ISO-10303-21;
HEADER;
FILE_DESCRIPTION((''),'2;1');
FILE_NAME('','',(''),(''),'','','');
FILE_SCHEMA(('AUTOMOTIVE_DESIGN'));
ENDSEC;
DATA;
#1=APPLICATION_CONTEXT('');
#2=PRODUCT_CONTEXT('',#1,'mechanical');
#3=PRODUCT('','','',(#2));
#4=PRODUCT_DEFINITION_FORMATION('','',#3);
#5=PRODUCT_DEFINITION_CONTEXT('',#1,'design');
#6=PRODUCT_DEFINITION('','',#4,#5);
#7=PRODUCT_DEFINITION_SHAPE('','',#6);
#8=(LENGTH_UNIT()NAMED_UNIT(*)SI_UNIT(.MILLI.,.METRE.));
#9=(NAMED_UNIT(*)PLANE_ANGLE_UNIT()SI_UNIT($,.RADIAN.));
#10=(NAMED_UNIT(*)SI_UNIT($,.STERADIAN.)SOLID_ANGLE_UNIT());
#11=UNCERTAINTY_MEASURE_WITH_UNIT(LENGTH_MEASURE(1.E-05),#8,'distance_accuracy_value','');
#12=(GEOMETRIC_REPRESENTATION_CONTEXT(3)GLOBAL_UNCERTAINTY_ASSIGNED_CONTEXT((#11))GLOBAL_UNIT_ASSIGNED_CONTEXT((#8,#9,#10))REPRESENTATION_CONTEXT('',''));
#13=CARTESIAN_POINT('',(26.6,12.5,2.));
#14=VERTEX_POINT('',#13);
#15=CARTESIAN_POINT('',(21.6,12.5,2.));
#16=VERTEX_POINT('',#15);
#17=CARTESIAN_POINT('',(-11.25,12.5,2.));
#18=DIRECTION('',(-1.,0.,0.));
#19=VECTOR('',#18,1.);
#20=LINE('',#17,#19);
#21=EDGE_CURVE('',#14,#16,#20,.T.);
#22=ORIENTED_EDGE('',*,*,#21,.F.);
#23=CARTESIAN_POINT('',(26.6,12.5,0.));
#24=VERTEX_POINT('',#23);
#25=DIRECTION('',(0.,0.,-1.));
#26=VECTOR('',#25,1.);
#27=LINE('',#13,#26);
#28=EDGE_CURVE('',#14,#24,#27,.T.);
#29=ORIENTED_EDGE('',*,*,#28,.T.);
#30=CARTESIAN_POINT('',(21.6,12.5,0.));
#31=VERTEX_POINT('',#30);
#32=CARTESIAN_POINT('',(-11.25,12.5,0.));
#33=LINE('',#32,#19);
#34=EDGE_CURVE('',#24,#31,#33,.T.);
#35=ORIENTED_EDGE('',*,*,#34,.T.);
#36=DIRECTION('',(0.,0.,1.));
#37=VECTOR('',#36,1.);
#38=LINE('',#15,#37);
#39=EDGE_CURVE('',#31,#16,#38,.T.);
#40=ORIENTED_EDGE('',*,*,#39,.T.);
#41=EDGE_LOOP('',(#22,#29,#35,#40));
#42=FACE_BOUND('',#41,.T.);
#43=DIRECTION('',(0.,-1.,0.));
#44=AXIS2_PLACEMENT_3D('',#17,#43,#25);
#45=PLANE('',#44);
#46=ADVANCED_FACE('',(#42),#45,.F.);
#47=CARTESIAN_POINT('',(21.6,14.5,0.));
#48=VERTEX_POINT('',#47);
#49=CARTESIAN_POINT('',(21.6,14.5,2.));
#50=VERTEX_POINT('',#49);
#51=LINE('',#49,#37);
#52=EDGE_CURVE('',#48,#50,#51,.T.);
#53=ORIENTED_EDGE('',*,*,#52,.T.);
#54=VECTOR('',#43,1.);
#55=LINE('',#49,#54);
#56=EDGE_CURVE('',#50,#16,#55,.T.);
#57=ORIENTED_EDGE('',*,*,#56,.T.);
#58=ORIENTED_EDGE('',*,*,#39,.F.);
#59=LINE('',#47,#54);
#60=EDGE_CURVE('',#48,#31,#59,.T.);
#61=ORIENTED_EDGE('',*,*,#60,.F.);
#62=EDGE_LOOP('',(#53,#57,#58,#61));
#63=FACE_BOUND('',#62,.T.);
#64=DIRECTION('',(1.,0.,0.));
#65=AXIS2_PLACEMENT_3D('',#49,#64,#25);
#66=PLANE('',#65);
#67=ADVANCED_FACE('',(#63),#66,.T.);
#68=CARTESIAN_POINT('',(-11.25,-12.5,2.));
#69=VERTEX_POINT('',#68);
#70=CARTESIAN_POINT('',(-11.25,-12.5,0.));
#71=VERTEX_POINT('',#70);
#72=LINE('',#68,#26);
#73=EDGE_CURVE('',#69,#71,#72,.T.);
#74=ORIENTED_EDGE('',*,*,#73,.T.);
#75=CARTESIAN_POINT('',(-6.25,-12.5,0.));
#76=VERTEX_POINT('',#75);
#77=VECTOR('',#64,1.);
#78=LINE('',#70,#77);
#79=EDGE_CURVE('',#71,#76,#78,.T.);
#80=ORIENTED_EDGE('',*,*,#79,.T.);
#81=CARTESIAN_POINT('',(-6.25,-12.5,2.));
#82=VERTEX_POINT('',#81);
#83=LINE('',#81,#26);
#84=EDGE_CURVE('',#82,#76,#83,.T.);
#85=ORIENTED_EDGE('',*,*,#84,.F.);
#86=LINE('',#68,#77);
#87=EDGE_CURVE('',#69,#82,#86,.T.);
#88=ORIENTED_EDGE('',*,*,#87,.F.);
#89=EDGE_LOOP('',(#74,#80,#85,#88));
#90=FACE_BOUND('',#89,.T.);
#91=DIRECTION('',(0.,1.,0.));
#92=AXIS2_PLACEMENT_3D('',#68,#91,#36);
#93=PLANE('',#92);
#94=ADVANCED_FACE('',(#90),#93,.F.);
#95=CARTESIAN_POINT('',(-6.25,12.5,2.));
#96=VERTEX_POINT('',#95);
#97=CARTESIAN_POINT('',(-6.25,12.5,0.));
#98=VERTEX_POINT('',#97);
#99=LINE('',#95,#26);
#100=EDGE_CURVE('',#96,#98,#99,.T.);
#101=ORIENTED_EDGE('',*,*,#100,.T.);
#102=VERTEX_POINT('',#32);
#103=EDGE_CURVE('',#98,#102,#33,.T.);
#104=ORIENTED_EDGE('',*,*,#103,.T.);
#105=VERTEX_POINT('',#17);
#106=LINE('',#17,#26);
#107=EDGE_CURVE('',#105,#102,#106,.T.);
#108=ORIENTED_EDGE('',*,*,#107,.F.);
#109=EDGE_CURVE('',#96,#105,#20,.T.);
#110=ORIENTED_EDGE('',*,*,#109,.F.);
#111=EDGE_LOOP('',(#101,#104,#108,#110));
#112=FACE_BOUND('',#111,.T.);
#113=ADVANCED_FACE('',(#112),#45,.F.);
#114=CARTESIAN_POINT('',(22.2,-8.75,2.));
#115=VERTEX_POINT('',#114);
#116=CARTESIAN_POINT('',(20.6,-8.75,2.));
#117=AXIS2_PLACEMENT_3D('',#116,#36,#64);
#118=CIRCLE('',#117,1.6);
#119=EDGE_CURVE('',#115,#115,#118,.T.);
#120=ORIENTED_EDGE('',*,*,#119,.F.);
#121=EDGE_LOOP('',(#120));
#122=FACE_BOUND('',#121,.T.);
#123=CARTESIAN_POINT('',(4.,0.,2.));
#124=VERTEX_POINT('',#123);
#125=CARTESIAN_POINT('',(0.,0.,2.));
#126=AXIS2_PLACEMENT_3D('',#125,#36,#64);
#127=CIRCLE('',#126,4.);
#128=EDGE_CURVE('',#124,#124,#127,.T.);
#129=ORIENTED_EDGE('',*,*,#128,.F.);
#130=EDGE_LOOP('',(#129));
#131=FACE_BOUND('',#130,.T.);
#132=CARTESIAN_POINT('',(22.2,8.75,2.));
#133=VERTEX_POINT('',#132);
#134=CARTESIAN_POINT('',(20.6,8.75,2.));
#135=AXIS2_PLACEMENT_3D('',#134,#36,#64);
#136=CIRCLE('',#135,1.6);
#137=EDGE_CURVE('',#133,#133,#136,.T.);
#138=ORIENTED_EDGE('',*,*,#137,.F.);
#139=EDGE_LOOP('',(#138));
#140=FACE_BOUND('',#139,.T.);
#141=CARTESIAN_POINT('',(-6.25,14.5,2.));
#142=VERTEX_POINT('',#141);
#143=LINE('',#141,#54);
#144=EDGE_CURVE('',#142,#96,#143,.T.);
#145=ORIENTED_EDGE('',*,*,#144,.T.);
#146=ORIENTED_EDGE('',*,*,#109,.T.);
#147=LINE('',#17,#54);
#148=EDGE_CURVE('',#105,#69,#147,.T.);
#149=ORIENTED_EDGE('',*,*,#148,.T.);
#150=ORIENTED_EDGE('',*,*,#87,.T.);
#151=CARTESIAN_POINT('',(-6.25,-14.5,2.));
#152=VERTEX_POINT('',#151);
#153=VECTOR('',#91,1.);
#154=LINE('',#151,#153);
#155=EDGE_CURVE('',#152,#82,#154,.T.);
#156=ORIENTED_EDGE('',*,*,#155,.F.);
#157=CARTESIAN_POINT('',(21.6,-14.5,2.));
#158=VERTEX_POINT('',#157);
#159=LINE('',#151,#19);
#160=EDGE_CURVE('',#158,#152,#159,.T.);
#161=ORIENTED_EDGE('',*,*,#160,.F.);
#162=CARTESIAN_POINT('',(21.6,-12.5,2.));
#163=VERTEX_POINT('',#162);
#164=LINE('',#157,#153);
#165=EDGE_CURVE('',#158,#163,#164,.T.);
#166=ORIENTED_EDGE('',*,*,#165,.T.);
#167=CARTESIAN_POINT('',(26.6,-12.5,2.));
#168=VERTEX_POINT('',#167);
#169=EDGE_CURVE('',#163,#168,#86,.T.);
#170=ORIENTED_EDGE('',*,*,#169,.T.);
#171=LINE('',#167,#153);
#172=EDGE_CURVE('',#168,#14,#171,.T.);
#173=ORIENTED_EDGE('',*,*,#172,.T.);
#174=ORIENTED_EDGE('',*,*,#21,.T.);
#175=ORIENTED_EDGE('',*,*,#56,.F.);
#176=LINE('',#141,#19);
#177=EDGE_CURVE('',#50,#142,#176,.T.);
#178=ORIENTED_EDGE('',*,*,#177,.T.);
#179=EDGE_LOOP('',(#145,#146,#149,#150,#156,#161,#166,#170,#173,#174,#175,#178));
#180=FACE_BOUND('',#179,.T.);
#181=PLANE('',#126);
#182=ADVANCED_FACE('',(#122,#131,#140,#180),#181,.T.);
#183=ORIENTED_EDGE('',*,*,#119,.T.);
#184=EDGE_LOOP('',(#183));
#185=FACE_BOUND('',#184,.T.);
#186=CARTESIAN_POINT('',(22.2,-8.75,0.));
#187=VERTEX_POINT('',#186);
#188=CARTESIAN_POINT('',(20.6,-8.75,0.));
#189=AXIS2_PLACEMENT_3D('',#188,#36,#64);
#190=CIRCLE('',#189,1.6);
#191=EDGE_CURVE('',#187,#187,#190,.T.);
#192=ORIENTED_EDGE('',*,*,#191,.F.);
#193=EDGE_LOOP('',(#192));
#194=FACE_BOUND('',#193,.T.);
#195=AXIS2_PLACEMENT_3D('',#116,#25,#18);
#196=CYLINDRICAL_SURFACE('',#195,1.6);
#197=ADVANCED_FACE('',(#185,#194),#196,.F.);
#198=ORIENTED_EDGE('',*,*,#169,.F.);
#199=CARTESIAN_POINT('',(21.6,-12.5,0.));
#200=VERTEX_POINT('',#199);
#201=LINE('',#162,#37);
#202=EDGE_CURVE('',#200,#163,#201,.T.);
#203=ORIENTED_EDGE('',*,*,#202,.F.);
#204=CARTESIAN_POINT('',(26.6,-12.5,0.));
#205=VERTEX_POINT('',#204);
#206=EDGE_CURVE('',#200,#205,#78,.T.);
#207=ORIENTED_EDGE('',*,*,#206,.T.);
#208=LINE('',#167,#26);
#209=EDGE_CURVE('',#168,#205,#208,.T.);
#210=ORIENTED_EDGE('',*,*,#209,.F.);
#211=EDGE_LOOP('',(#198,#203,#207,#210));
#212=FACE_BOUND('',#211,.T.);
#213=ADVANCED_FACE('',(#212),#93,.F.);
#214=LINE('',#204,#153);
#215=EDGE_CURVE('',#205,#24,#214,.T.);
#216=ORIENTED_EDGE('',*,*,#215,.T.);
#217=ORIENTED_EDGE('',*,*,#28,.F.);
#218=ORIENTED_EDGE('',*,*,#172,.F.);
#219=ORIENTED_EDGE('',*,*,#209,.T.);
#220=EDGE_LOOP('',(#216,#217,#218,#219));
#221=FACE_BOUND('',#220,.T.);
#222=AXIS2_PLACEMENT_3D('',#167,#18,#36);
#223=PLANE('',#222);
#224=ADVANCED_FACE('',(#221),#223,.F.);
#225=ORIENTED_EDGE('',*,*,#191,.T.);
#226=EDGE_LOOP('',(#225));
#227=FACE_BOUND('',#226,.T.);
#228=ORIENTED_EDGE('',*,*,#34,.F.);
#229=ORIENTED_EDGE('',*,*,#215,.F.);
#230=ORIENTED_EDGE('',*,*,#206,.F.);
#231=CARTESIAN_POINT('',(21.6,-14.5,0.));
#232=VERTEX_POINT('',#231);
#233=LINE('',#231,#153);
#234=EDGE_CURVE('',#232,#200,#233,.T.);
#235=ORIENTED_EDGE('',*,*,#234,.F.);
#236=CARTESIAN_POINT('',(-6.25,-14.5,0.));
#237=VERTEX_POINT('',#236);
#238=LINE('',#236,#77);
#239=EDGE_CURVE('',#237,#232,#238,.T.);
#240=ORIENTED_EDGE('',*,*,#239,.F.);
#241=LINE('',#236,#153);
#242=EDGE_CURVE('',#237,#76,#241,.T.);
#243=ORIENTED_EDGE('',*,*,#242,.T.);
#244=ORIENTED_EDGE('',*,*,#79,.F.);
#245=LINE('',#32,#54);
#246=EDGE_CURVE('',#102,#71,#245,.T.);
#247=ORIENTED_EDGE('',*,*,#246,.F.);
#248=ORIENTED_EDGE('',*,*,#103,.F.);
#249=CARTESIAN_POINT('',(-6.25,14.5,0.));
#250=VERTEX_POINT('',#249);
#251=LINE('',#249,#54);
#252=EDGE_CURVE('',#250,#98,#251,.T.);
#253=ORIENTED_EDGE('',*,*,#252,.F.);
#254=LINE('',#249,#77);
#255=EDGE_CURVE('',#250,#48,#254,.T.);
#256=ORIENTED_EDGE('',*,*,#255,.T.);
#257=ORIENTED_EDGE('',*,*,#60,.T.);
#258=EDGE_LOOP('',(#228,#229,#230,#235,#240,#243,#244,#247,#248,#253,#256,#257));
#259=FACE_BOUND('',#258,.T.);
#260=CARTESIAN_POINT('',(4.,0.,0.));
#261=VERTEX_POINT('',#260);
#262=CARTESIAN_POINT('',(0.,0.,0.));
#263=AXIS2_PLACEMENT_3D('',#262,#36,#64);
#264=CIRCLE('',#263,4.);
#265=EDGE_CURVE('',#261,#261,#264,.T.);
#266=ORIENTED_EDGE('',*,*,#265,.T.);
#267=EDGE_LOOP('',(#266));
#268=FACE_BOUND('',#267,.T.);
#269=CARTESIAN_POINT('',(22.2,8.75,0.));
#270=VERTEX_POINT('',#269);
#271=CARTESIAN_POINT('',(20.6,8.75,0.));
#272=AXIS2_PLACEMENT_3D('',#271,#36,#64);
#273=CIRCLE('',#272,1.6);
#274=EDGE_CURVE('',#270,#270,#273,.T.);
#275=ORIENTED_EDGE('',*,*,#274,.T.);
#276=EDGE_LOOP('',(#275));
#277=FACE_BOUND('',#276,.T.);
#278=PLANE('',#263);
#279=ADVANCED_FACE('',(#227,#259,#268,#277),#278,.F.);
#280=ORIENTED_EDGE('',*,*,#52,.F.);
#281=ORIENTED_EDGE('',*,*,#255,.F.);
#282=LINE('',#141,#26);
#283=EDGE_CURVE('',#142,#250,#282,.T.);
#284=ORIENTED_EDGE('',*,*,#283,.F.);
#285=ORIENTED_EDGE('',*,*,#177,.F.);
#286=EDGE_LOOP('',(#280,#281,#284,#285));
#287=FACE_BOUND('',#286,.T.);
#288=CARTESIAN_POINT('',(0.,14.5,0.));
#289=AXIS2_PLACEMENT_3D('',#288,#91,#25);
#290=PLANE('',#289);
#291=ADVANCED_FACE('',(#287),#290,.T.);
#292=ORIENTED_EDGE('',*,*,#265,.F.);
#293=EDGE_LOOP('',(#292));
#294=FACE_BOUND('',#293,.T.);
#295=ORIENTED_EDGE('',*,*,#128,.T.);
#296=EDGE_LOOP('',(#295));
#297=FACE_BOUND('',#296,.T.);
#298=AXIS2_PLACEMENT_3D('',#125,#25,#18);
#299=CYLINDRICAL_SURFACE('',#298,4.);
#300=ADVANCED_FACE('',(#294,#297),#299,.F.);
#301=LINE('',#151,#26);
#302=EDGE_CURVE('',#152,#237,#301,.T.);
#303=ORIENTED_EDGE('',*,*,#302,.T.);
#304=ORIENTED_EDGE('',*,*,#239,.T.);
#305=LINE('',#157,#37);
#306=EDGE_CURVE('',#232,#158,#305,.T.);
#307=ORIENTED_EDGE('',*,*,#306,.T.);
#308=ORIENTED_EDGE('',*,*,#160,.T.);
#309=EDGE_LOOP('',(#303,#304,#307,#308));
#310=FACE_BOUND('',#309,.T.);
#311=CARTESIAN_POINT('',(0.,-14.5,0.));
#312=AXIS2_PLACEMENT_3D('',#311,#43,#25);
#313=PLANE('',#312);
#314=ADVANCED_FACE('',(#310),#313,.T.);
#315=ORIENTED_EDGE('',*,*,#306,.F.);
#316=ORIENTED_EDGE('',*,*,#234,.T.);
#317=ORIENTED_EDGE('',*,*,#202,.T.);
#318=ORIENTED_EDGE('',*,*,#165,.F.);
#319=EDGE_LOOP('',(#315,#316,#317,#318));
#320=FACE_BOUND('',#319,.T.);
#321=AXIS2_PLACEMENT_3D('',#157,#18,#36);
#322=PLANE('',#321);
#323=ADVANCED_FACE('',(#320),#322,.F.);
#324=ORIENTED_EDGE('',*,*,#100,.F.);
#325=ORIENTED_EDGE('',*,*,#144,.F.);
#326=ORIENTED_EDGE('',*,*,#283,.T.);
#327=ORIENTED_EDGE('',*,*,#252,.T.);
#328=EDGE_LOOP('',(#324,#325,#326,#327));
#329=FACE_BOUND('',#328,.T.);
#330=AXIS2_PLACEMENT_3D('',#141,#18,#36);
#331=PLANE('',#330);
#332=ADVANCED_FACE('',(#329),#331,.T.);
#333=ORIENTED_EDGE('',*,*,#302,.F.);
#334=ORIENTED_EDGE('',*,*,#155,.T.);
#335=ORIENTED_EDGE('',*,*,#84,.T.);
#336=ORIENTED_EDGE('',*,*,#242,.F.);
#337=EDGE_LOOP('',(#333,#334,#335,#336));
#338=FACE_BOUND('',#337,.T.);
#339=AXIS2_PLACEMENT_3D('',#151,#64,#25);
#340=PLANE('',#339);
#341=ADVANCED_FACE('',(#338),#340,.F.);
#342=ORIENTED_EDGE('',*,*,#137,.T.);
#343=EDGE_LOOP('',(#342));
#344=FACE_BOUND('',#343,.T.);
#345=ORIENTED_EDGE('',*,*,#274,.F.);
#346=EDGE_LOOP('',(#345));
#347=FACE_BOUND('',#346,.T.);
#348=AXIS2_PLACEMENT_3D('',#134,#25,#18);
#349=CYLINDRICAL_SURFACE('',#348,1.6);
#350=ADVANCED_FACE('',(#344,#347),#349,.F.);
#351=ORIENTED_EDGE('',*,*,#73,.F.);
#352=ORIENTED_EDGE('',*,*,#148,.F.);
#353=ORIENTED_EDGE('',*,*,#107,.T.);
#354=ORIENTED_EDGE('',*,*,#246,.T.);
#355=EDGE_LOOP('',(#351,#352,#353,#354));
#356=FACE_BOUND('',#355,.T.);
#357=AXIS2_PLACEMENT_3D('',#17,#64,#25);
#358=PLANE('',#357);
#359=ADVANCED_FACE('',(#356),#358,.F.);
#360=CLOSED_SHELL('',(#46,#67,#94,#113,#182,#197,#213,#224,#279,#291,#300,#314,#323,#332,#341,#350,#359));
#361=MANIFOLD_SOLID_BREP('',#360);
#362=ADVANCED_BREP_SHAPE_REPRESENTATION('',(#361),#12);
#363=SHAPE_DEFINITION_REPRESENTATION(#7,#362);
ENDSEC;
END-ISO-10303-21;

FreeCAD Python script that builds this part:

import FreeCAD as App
import Part
import Sketcher
from FreeCAD import Vector
Q = App.Units.Quantity

doc = App.newDocument("Part")
body = doc.addObject("PartDesign::Body", "Body")

# Sketch on XY plane
sketch1 = body.newObject("Sketcher::SketchObject", "Sketch")
sketch1.AttachmentSupport = (doc.getObject("XY_Plane"), [""])
sketch1.MapMode = "FlatFace"
sketch1.addGeometry(Part.LineSegment(Vector(-11.2, 12.5, 0), Vector(-11.2, -12.5, 0)), False)
sketch1.addGeometry(Part.LineSegment(Vector(-11.2, -12.5, 0), Vector(26.6, -12.5, 0)), False)
sketch1.addGeometry(Part.LineSegment(Vector(26.6, -12.5, 0), Vector(26.6, 12.5, 0)), False)
sketch1.addGeometry(Part.LineSegment(Vector(26.6, 12.5, 0), Vector(-11.2, 12.5, 0)), False)
sketch1.addGeometry(Part.Circle(Vector(20.6, -8.8, 0), Vector(0, 0, 1), 1.6), False)
sketch1.addGeometry(Part.Circle(Vector(0, 0, 0), Vector(0, 0, 1), 4), False)
sketch1.addGeometry(Part.Circle(Vector(20.6, 8.8, 0), Vector(0, 0, 1), 1.6), False)
sketch1.addConstraint(Sketcher.Constraint("Coincident", 0, 2, 1, 1))
sketch1.addConstraint(Sketcher.Constraint("Coincident", 1, 2, 2, 1))
sketch1.addConstraint(Sketcher.Constraint("Coincident", 2, 2, 3, 1))
sketch1.addConstraint(Sketcher.Constraint("Coincident", 3, 2, 0, 1))
sketch1.addConstraint(Sketcher.Constraint("Vertical", 0))
sketch1.addConstraint(Sketcher.Constraint("Horizontal", 1))
sketch1.addConstraint(Sketcher.Constraint("Vertical", 2))
sketch1.addConstraint(Sketcher.Constraint("Horizontal", 3))
sketch1.addConstraint(Sketcher.Constraint("Coincident", 5, 3, -1, 1))
sketch1.addConstraint(Sketcher.Constraint("Equal", 4, 6))
sketch1.addConstraint(Sketcher.Constraint("Symmetric", 4, 3, 6, 3, -1))
sketch1.addConstraint(Sketcher.Constraint("Diameter", 5, Q("8 mm")))
sketch1.addConstraint(Sketcher.Constraint("Diameter", 4, Q("3.2 mm")))
sketch1.addConstraint(Sketcher.Constraint("DistanceY", 0, 2, 0, 1, Q("25 mm")))
sketch1.addConstraint(Sketcher.Constraint("DistanceX", 4, 3, 1, 2, Q("6 mm")))
sketch1.addConstraint(Sketcher.Constraint("DistanceX", 1, 1, 1, 2, Q("37.85 mm")))
sketch1.addConstraint(Sketcher.Constraint("DistanceX", -1, 1, 4, 3, Q("20.6 mm")))
sketch1.addConstraint(Sketcher.Constraint("DistanceY", 0, 2, -1, 1, Q("12.5 mm")))
sketch1.addConstraint(Sketcher.Constraint("DistanceY", 4, 3, 6, 3, Q("17.5 mm")))
pad1 = body.newObject("PartDesign::Pad", "Pad")
pad1.Profile = sketch1
pad1.Length = 2

# Sketch on XZ plane
sketch2 = body.newObject("Sketcher::SketchObject", "Sketch001")
sketch2.AttachmentSupport = (doc.getObject("XZ_Plane"), [""])
sketch2.MapMode = "FlatFace"
sketch2.AttachmentOffset = App.Placement(Vector(0, 0, 12.5), App.Rotation())
sketch2.addGeometry(Part.LineSegment(Vector(-6.2, 2, 0), Vector(-6.2, 0, 0)), False)
sketch2.addGeometry(Part.LineSegment(Vector(-6.2, 0, 0), Vector(21.6, 0, 0)), False)
sketch2.addGeometry(Part.LineSegment(Vector(21.6, 0, 0), Vector(21.6, 2, 0)), False)
sketch2.addGeometry(Part.LineSegment(Vector(21.6, 2, 0), Vector(-6.2, 2, 0)), False)
sketch2.addConstraint(Sketcher.Constraint("Coincident", 0, 2, 1, 1))
sketch2.addConstraint(Sketcher.Constraint("Coincident", 1, 2, 2, 1))
sketch2.addConstraint(Sketcher.Constraint("Coincident", 2, 2, 3, 1))
sketch2.addConstraint(Sketcher.Constraint("Coincident", 3, 2, 0, 1))
sketch2.addConstraint(Sketcher.Constraint("Vertical", 0))
sketch2.addConstraint(Sketcher.Constraint("Horizontal", 1))
sketch2.addConstraint(Sketcher.Constraint("Vertical", 2))
sketch2.addConstraint(Sketcher.Constraint("Horizontal", 3))
sketch2.addConstraint(Sketcher.Constraint("PointOnObject", 0, 2, -1))
sketch2.addConstraint(Sketcher.Constraint("DistanceY", 0, 2, 0, 1, Q("2 mm")))
sketch2.addConstraint(Sketcher.Constraint("DistanceX", 1, 1, 1, 2, Q("27.85 mm")))
sketch2.addConstraint(Sketcher.Constraint("DistanceX", -1, 1, 1, 2, Q("21.6 mm")))
pad2 = body.newObject("PartDesign::Pad", "Pad001")
pad2.Profile = sketch2
pad2.Length = 2
doc.recompute()

mirrored = body.newObject("PartDesign::Mirrored", "Mirrored")
mirrored.Originals = [pad2]
mirrored.MirrorPlane = (doc.getObject("XZ_Plane"), [""])
body.Tip = mirrored

doc.recompute()
